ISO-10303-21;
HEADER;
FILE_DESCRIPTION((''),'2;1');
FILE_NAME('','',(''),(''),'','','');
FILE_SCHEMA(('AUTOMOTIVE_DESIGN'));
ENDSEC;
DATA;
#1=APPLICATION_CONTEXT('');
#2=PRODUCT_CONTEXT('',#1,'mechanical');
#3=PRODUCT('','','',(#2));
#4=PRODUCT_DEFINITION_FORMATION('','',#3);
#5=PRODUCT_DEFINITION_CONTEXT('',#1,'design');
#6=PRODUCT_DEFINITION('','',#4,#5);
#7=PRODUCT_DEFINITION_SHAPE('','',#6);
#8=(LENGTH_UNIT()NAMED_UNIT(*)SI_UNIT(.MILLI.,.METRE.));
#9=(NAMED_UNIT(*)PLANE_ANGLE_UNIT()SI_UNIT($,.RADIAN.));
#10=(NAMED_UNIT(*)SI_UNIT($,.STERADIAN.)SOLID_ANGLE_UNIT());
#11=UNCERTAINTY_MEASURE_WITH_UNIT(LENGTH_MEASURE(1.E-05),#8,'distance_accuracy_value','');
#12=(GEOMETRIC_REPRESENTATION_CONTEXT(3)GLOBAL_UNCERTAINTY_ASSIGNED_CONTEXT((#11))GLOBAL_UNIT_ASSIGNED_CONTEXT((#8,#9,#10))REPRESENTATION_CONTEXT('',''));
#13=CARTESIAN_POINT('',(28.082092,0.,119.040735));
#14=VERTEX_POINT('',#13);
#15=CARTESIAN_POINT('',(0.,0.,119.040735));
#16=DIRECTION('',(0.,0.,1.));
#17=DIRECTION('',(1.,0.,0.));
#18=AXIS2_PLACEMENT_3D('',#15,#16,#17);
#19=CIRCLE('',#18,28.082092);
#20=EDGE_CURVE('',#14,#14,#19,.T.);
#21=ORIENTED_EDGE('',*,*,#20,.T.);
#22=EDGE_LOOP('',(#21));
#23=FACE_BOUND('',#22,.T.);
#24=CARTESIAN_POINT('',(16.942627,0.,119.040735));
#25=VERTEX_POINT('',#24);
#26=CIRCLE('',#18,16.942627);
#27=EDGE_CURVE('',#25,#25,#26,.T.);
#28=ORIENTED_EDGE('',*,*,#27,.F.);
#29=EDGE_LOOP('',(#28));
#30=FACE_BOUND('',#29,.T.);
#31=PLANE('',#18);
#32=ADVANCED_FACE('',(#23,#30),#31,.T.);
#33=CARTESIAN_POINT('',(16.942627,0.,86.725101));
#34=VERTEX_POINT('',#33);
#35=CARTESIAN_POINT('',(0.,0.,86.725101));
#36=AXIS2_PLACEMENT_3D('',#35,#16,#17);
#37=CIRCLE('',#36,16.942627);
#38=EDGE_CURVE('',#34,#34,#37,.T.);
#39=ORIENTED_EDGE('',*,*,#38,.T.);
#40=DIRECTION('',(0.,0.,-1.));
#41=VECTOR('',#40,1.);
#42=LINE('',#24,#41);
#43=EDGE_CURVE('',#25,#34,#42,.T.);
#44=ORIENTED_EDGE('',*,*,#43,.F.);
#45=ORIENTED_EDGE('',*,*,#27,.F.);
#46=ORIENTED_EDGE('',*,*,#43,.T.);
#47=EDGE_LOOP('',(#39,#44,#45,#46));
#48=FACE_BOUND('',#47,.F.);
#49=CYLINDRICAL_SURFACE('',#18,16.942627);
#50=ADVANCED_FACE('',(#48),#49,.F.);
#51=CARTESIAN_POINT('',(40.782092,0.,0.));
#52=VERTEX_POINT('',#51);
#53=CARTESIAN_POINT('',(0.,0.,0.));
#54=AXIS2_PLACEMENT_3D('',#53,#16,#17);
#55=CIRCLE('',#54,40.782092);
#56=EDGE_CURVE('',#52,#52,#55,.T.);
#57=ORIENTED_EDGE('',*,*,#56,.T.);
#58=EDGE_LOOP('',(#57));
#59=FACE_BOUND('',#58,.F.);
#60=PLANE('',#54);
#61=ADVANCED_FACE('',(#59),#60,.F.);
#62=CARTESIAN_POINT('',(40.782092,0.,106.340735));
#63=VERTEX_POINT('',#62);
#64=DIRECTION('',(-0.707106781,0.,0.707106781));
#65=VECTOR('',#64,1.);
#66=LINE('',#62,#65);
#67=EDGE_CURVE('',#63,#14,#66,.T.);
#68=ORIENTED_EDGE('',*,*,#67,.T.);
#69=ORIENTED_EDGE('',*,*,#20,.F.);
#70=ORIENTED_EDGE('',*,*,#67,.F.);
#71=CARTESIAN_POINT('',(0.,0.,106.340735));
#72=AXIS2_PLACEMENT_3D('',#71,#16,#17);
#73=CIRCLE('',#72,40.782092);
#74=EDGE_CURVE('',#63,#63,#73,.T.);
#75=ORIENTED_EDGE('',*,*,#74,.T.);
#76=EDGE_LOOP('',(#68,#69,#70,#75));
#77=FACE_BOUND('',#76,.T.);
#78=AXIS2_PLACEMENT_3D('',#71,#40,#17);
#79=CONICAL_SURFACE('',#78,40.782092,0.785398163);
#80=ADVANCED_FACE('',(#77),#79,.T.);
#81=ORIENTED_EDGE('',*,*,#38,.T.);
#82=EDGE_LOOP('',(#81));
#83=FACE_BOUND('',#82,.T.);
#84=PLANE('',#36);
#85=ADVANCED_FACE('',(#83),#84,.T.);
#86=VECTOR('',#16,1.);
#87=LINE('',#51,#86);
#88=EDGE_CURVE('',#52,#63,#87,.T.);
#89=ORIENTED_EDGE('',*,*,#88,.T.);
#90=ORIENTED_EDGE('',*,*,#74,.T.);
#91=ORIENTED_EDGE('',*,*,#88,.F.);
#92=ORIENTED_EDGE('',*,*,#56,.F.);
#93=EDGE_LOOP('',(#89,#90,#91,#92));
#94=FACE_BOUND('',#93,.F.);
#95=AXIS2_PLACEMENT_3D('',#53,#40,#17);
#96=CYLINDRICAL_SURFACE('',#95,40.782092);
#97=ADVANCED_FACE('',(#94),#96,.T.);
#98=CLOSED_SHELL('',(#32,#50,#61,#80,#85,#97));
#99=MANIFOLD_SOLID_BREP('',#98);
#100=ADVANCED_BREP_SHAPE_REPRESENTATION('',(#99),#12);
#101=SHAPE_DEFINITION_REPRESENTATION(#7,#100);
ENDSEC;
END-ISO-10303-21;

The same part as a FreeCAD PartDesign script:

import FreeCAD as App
import Part
import Sketcher
from FreeCAD import Vector
Q = App.Units.Quantity


def edges_at(feature, points):
    """Names of the edges that pass closest to the given points."""
    edges = feature.Shape.Edges
    near = lambda p: min(range(len(edges)), key=lambda i: edges[i].distToShape(Part.Vertex(*p))[0])
    return sorted({f"Edge{near(p) + 1}" for p in points})

doc = App.newDocument("Part")
body = doc.addObject("PartDesign::Body", "Body")

# Sketch on XY plane
sketch1 = doc.addObject("Sketcher::SketchObject", "Sketch")
body.addObject(sketch1)
sketch1.AttachmentSupport = (doc.XY_Plane, [""])
sketch1.MapMode = "FlatFace"
sketch1.addGeometry(Part.Circle(Vector(0, 0, 0), Vector(0, 0, 1), 41), False)
sketch1.addConstraint([
    Sketcher.Constraint("Coincident", 0, 3, -1, 1),
    Sketcher.Constraint("Diameter", 0, Q("81.564184 mm")),
])
pad1 = doc.addObject("PartDesign::Pad", "Pad")
body.addObject(pad1)
pad1.Profile = sketch1
pad1.Length = 119.040735

# Sketch on XY plane
sketch2 = doc.addObject("Sketcher::SketchObject", "Sketch001")
body.addObject(sketch2)
sketch2.AttachmentSupport = (doc.XY_Plane, [""])
sketch2.MapMode = "FlatFace"
sketch2.AttachmentOffset = App.Placement(Vector(0, 0, 119.040735), App.Rotation())
sketch2.addGeometry(Part.Circle(Vector(0, 0, 0), Vector(0, 0, 1), 17), False)
sketch2.addConstraint([
    Sketcher.Constraint("Coincident", 0, 3, -1, 1),
    Sketcher.Constraint("Diameter", 0, Q("33.885254 mm")),
])
pocket1 = doc.addObject("PartDesign::Pocket", "Pocket")
body.addObject(pocket1)
pocket1.Profile = sketch2
pocket1.Length = 32.315634
doc.recompute()

chamfer = doc.addObject("PartDesign::Chamfer", "Chamfer")
body.addObject(chamfer)
chamfer.Base = (pocket1, edges_at(pocket1, [(-40.782, 0, 119.041)]))
chamfer.Size = Q("0.5 in")

doc.recompute()
